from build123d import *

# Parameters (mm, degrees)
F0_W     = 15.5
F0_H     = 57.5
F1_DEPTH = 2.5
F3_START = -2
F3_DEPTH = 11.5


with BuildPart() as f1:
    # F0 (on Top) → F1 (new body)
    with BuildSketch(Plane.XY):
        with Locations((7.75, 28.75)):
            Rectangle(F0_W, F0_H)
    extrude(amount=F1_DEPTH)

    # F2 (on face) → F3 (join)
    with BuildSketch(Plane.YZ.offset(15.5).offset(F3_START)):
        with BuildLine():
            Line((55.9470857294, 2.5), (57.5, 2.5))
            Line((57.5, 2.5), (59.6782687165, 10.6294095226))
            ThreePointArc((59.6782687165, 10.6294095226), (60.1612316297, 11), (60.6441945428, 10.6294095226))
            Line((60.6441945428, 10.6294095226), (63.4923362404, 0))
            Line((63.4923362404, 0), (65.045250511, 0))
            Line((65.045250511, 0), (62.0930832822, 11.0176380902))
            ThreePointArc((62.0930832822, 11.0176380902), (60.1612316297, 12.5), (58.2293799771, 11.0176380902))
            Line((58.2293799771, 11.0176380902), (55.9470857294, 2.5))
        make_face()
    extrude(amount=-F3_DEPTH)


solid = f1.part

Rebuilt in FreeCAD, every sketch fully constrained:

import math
import FreeCAD as App
import Part
import Sketcher
Q = App.Units.Quantity

doc = App.newDocument("Part")
body = doc.addObject("PartDesign::Body", "Body")

# Sketch on XY plane
sketch1 = body.newObject("Sketcher::SketchObject", "Sketch")
sketch1.AttachmentSupport = (doc.getObject("XY_Plane"), [""])
sketch1.MapMode = "FlatFace"
sketch1.addGeometry(Part.LineSegment(App.Vector(0, 58, 0), App.Vector(0, 0, 0)), False)
sketch1.addGeometry(Part.LineSegment(App.Vector(0, 0, 0), App.Vector(16, 0, 0)), False)
sketch1.addGeometry(Part.LineSegment(App.Vector(16, 0, 0), App.Vector(16, 58, 0)), False)
sketch1.addGeometry(Part.LineSegment(App.Vector(16, 58, 0), App.Vector(0, 58, 0)), False)
sketch1.addConstraint(Sketcher.Constraint("Coincident", 0, 2, 1, 1))
sketch1.addConstraint(Sketcher.Constraint("Coincident", 1, 2, 2, 1))
sketch1.addConstraint(Sketcher.Constraint("Coincident", 2, 2, 3, 1))
sketch1.addConstraint(Sketcher.Constraint("Coincident", 3, 2, 0, 1))
sketch1.addConstraint(Sketcher.Constraint("Vertical", 0))
sketch1.addConstraint(Sketcher.Constraint("Horizontal", 1))
sketch1.addConstraint(Sketcher.Constraint("Vertical", 2))
sketch1.addConstraint(Sketcher.Constraint("Horizontal", 3))
sketch1.addConstraint(Sketcher.Constraint("Coincident", 0, 2, -1, 1))
sketch1.addConstraint(Sketcher.Constraint("DistanceX", 1, 1, 1, 2, 15.5))
sketch1.addConstraint(Sketcher.Constraint("DistanceY", 0, 2, 0, 1, 57.5))
pad1 = body.newObject("PartDesign::Pad", "Pad")
pad1.Profile = sketch1
pad1.Length = 2.5

# Sketch on YZ plane
sketch2 = body.newObject("Sketcher::SketchObject", "Sketch001")
sketch2.AttachmentSupport = (doc.getObject("YZ_Plane"), [""])
sketch2.MapMode = "FlatFace"
sketch2.AttachmentOffset = App.Placement(App.Vector(0, 0, 13.5), App.Rotation())
sketch2.addGeometry(Part.LineSegment(App.Vector(55.9, 2.5, 0), App.Vector(57.5, 2.5, 0)), False)
sketch2.addGeometry(Part.LineSegment(App.Vector(57.5, 2.5, 0), App.Vector(59.7, 10.6, 0)), False)
sketch2.addGeometry(Part.ArcOfCircle(Part.Circle(App.Vector(60.2, 10.5, 0), App.Vector(0, 0, 1), 0.5), math.radians(15), math.radians(165)), False)
sketch2.addGeometry(Part.LineSegment(App.Vector(60.6, 10.6, 0), App.Vector(63.5, 0, 0)), False)
sketch2.addGeometry(Part.LineSegment(App.Vector(63.5, 0, 0), App.Vector(65, 0, 0)), False)
sketch2.addGeometry(Part.LineSegment(App.Vector(65, 0, 0), App.Vector(62.1, 11, 0)), False)
sketch2.addGeometry(Part.ArcOfCircle(Part.Circle(App.Vector(60.2, 10.5, 0), App.Vector(0, 0, 1), 2), math.radians(15), math.radians(165)), False)
sketch2.addGeometry(Part.LineSegment(App.Vector(58.2, 11, 0), App.Vector(55.9, 2.5, 0)), False)
sketch2.addConstraint(Sketcher.Constraint("Coincident", 0, 2, 1, 1))
sketch2.addConstraint(Sketcher.Constraint("Tangent", 1, 2, 2, 2))
sketch2.addConstraint(Sketcher.Constraint("Tangent", 2, 1, 3, 1))
sketch2.addConstraint(Sketcher.Constraint("Coincident", 3, 2, 4, 1))
sketch2.addConstraint(Sketcher.Constraint("Coincident", 4, 2, 5, 1))
sketch2.addConstraint(Sketcher.Constraint("Tangent", 5, 2, 6, 1))
sketch2.addConstraint(Sketcher.Constraint("Tangent", 6, 2, 7, 1))
sketch2.addConstraint(Sketcher.Constraint("Coincident", 7, 2, 0, 1))
sketch2.addConstraint(Sketcher.Constraint("Horizontal", 0))
sketch2.addConstraint(Sketcher.Constraint("Horizontal", 4))
sketch2.addConstraint(Sketcher.Constraint("Coincident", 6, 3, 2, 3))
sketch2.addConstraint(Sketcher.Constraint("PointOnObject", 3, 2, -1))
sketch2.addConstraint(Sketcher.Constraint("Parallel", 3, 5))
sketch2.addConstraint(Sketcher.Constraint("Parallel", 1, 7))
sketch2.addConstraint(Sketcher.Constraint("Horizontal", 1, 2, 2, 1))
sketch2.addConstraint(Sketcher.Constraint("Radius", 6, 2.0))
sketch2.addConstraint(Sketcher.Constraint("Radius", 2, 0.5))
sketch2.addConstraint(Sketcher.Constraint("Angle", 1, Q("75 deg")))
sketch2.addConstraint(Sketcher.Constraint("DistanceY", 0, 2, 2, 3, 8.0))
sketch2.addConstraint(Sketcher.Constraint("DistanceY", -1, 1, 2, 3, 10.5))
sketch2.addConstraint(Sketcher.Constraint("DistanceX", -1, 1, 0, 2, 57.5))
pad2 = body.newObject("PartDesign::Pad", "Pad001")
pad2.Profile = sketch2
pad2.Length = 11.5
pad2.Reversed = True

doc.recompute()
